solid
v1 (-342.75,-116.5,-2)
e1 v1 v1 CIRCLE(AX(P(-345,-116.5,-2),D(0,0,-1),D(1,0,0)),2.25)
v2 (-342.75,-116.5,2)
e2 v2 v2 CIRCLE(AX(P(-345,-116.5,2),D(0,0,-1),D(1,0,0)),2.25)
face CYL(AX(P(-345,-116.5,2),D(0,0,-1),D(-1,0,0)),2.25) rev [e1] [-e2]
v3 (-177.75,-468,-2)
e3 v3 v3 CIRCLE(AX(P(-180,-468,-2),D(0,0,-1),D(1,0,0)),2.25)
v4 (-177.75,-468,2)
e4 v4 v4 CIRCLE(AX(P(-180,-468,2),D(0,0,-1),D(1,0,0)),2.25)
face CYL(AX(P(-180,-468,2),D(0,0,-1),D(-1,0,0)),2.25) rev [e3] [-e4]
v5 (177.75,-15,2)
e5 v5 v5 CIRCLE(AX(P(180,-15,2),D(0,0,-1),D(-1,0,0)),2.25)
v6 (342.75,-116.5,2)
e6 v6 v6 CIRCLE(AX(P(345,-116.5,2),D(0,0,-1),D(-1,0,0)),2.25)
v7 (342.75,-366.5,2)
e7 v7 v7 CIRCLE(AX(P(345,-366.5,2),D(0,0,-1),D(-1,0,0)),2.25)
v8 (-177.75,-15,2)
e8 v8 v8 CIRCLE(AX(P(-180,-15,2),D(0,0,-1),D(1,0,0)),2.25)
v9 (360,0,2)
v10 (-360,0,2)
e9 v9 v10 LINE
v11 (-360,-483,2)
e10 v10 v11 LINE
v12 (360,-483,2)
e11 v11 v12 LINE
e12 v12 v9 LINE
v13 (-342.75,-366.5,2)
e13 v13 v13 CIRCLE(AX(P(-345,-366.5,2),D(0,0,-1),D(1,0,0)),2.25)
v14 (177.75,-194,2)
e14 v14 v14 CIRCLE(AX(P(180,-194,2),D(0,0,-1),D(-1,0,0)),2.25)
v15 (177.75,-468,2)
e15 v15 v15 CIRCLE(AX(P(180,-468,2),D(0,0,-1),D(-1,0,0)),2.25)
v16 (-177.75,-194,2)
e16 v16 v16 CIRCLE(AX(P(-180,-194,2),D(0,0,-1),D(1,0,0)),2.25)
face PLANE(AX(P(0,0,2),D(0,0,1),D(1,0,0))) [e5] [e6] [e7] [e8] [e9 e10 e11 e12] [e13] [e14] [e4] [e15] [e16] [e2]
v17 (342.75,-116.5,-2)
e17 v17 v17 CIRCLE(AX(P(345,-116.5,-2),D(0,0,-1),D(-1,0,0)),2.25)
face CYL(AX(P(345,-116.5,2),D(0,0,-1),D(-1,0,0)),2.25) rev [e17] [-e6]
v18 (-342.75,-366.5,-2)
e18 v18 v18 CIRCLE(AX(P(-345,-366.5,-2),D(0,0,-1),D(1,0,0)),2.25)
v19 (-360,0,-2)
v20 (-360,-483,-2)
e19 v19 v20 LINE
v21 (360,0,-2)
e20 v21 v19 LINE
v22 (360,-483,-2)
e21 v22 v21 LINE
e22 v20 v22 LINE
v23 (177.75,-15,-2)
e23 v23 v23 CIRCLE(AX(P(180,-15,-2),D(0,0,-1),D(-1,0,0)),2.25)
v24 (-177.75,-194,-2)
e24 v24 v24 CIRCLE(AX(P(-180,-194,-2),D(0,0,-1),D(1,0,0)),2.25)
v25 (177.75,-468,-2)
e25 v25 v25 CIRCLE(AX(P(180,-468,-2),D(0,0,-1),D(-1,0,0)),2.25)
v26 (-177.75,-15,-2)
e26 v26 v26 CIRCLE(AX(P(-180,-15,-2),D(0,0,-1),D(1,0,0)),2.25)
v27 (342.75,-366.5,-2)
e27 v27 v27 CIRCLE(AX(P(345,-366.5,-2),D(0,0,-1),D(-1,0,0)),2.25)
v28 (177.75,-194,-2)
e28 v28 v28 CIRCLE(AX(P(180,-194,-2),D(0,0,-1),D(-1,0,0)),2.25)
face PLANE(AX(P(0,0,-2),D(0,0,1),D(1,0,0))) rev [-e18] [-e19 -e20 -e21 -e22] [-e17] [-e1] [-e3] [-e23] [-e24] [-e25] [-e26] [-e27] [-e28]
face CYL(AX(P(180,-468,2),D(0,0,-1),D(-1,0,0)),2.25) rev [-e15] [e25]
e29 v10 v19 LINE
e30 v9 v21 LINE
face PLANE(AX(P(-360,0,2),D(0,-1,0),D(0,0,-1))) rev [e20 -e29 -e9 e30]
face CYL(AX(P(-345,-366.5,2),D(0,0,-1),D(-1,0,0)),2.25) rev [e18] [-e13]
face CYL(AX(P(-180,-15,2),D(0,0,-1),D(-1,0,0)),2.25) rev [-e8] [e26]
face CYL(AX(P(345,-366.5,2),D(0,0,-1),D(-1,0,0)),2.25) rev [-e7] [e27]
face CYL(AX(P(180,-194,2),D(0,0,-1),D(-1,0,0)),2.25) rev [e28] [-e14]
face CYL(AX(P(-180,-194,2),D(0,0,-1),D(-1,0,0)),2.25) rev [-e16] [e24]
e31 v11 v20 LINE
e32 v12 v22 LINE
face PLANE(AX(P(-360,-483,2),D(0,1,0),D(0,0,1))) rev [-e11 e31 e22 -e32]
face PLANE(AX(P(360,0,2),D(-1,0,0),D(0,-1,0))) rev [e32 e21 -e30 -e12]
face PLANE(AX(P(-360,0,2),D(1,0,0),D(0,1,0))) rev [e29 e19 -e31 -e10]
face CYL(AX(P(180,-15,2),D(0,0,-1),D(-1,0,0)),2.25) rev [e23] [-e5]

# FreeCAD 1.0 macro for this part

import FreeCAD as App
import Part
import Sketcher
from FreeCAD import Vector
Q = App.Units.Quantity

doc = App.newDocument("Part")
params = doc.addObject("Spreadsheet::Sheet", "Params")
for row, (alias, value) in enumerate([
    ("sketch1_width", "720 mm"),
    ("sketch1_height", "483 mm"),
    ("pad1_length", "4 mm"),
    ("sketch2_diameter", "4.5 mm"),
], start=1):
    params.set(f"A{row}", alias)
    params.set(f"B{row}", "=" + value)
    params.setAlias(f"B{row}", alias)

body = doc.addObject("PartDesign::Body", "Body")

sketch1 = doc.addObject("Sketcher::SketchObject", "Sketch")
body.addObject(sketch1)
sketch1.AttachmentSupport = (doc.XY_Plane, [""])
sketch1.MapMode = "FlatFace"
sketch1.addGeometry([
    Part.LineSegment(Vector(-360, 0, 0), Vector(-360, -483, 0)),
    Part.LineSegment(Vector(-360, -483, 0), Vector(360, -483, 0)),
    Part.LineSegment(Vector(360, -483, 0), Vector(360, 0, 0)),
    Part.LineSegment(Vector(360, 0, 0), Vector(-360, 0, 0)),
], False)
sketch1.addConstraint([
    Sketcher.Constraint("Coincident", 0, 2, 1, 1),
    Sketcher.Constraint("Coincident", 1, 2, 2, 1),
    Sketcher.Constraint("Coincident", 2, 2, 3, 1),
    Sketcher.Constraint("Coincident", 3, 2, 0, 1),
    Sketcher.Constraint("Vertical", 0),
    Sketcher.Constraint("Horizontal", 1),
    Sketcher.Constraint("Vertical", 2),
    Sketcher.Constraint("Horizontal", 3),
    Sketcher.Constraint("Symmetric", 2, 2, 3, 2, -1, 1),
    Sketcher.Constraint("DistanceX", 1, 1, 1, 2, Q("720 mm")),
    Sketcher.Constraint("DistanceY", 0, 2, 0, 1, Q("483 mm")),
])
sketch1.setExpression("Constraints[9]", "Params.sketch1_width")
sketch1.setExpression("Constraints[10]", "Params.sketch1_height")
pad1 = doc.addObject("PartDesign::Pad", "Pad")
body.addObject(pad1)
pad1.Profile = sketch1
pad1.setExpression("Length", "Params.pad1_length")
pad1.Midplane = True

sketch2 = doc.addObject("Sketcher::SketchObject", "Sketch001")
body.addObject(sketch2)
sketch2.AttachmentSupport = (doc.XY_Plane, [""])
sketch2.MapMode = "FlatFace"
sketch2.AttachmentOffset = App.Placement(Vector(0, 0, -2), App.Rotation())
sketch2.addGeometry([
    Part.Circle(Vector(345, -116.5, 0), Vector(0, 0, 1), 2.2),
    Part.Circle(Vector(180, -15, 0), Vector(0, 0, 1), 2.2),
    Part.Circle(Vector(180, -194, 0), Vector(0, 0, 1), 2.2),
    Part.Circle(Vector(-180, -194, 0), Vector(0, 0, 1), 2.2),
    Part.Circle(Vector(-345, -116.5, 0), Vector(0, 0, 1), 2.2),
    Part.Circle(Vector(-180, -15, 0), Vector(0, 0, 1), 2.2),
    Part.Circle(Vector(345, -366.5, 0), Vector(0, 0, 1), 2.2),
    Part.Circle(Vector(-345, -366.5, 0), Vector(0, 0, 1), 2.2),
    Part.Circle(Vector(180, -468, 0), Vector(0, 0, 1), 2.2),
    Part.Circle(Vector(-180, -468, 0), Vector(0, 0, 1), 2.2),
], False)
sketch2.addConstraint([
    Sketcher.Constraint("Equal", 0, 1),
    Sketcher.Constraint("Equal", 1, 2),
    Sketcher.Constraint("Equal", 2, 3),
    Sketcher.Constraint("Equal", 3, 4),
    Sketcher.Constraint("Equal", 4, 5),
    Sketcher.Constraint("Equal", 5, 6),
    Sketcher.Constraint("Equal", 6, 7),
    Sketcher.Constraint("Equal", 7, 8),
    Sketcher.Constraint("Equal", 8, 9),
    Sketcher.Constraint("Symmetric", 2, 3, 3, 3, -2),
    Sketcher.Constraint("Symmetric", 0, 3, 4, 3, -2),
    Sketcher.Constraint("Symmetric", 1, 3, 5, 3, -2),
    Sketcher.Constraint("Symmetric", 6, 3, 7, 3, -2),
    Sketcher.Constraint("Symmetric", 8, 3, 9, 3, -2),
    Sketcher.Constraint("Vertical", 1, 3, 2, 3),
    Sketcher.Constraint("Vertical", 0, 3, 6, 3),
    Sketcher.Constraint("Vertical", 2, 3, 8, 3),
    Sketcher.Constraint("Diameter", 0, Q("4.5 mm")),
    Sketcher.Constraint("DistanceX", -1, 1, 0, 3, Q("345 mm")),
    Sketcher.Constraint("DistanceX", -1, 1, 1, 3, Q("180 mm")),
    Sketcher.Constraint("DistanceY", 1, 3, -1, 1, Q("15 mm")),
    Sketcher.Constraint("DistanceY", 2, 3, -1, 1, Q("194 mm")),
    Sketcher.Constraint("DistanceY", 8, 3, -1, 1, Q("468 mm")),
    Sketcher.Constraint("DistanceY", 6, 3, 0, 3, Q("250 mm")),
    Sketcher.Constraint("DistanceY", 0, 3, -1, 1, Q("116.5 mm")),
])
sketch2.setExpression("Constraints[17]", "Params.sketch2_diameter")
pocket1 = doc.addObject("PartDesign::Pocket", "Pocket")
body.addObject(pocket1)
pocket1.Profile = sketch2
pocket1.Type = "ThroughAll"
pocket1.Reversed = True

doc.recompute()
